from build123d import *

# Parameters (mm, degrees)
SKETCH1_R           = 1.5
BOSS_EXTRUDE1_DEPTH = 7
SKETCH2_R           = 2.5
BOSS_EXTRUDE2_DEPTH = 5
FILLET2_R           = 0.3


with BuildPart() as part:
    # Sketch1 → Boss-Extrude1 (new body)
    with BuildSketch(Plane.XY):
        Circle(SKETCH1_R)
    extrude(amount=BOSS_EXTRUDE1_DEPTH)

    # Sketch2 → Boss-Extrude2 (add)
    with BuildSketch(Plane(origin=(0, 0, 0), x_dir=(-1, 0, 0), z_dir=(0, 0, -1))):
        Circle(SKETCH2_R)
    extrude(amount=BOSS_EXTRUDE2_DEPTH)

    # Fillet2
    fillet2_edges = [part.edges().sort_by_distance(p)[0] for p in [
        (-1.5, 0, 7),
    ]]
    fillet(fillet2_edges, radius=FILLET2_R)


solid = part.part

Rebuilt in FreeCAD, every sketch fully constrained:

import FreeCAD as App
import Part
import Sketcher
Q = App.Units.Quantity


def edges_at(feature, points):
    """Names of the edges that pass closest to the given points."""
    edges = feature.Shape.Edges
    near = lambda p: min(range(len(edges)), key=lambda i: edges[i].distToShape(Part.Vertex(*p))[0])
    return sorted({f"Edge{near(p) + 1}" for p in points})

doc = App.newDocument("Part")
body = doc.addObject("PartDesign::Body", "Body")

# Sketch on XY plane
sketch1 = body.newObject("Sketcher::SketchObject", "Sketch")
sketch1.AttachmentSupport = (doc.getObject("XY_Plane"), [""])
sketch1.MapMode = "FlatFace"
sketch1.addGeometry(Part.Circle(App.Vector(0, 0, 0), App.Vector(0, 0, 1), 1.5), False)
sketch1.addConstraint(Sketcher.Constraint("Coincident", 0, 3, -1, 1))
sketch1.addConstraint(Sketcher.Constraint("Diameter", 0, Q("3 mm")))
pad1 = body.newObject("PartDesign::Pad", "Pad")
pad1.Profile = sketch1
pad1.Length = 7

# Sketch on XY plane
sketch2 = body.newObject("Sketcher::SketchObject", "Sketch001")
sketch2.AttachmentSupport = (doc.getObject("XY_Plane"), [""])
sketch2.MapMode = "FlatFace"
sketch2.addGeometry(Part.Circle(App.Vector(0, 0, 0), App.Vector(0, 0, 1), 2.5), False)
sketch2.addConstraint(Sketcher.Constraint("Coincident", 0, 3, -1, 1))
sketch2.addConstraint(Sketcher.Constraint("Diameter", 0, Q("5 mm")))
pad2 = body.newObject("PartDesign::Pad", "Pad001")
pad2.Profile = sketch2
pad2.Length = 5
pad2.Reversed = True
doc.recompute()

fillet = body.newObject("PartDesign::Fillet", "Fillet")
fillet.Base = (pad2, edges_at(pad2, [(-1.5, 0, 7)]))
fillet.Radius = 0.3

doc.recompute()
